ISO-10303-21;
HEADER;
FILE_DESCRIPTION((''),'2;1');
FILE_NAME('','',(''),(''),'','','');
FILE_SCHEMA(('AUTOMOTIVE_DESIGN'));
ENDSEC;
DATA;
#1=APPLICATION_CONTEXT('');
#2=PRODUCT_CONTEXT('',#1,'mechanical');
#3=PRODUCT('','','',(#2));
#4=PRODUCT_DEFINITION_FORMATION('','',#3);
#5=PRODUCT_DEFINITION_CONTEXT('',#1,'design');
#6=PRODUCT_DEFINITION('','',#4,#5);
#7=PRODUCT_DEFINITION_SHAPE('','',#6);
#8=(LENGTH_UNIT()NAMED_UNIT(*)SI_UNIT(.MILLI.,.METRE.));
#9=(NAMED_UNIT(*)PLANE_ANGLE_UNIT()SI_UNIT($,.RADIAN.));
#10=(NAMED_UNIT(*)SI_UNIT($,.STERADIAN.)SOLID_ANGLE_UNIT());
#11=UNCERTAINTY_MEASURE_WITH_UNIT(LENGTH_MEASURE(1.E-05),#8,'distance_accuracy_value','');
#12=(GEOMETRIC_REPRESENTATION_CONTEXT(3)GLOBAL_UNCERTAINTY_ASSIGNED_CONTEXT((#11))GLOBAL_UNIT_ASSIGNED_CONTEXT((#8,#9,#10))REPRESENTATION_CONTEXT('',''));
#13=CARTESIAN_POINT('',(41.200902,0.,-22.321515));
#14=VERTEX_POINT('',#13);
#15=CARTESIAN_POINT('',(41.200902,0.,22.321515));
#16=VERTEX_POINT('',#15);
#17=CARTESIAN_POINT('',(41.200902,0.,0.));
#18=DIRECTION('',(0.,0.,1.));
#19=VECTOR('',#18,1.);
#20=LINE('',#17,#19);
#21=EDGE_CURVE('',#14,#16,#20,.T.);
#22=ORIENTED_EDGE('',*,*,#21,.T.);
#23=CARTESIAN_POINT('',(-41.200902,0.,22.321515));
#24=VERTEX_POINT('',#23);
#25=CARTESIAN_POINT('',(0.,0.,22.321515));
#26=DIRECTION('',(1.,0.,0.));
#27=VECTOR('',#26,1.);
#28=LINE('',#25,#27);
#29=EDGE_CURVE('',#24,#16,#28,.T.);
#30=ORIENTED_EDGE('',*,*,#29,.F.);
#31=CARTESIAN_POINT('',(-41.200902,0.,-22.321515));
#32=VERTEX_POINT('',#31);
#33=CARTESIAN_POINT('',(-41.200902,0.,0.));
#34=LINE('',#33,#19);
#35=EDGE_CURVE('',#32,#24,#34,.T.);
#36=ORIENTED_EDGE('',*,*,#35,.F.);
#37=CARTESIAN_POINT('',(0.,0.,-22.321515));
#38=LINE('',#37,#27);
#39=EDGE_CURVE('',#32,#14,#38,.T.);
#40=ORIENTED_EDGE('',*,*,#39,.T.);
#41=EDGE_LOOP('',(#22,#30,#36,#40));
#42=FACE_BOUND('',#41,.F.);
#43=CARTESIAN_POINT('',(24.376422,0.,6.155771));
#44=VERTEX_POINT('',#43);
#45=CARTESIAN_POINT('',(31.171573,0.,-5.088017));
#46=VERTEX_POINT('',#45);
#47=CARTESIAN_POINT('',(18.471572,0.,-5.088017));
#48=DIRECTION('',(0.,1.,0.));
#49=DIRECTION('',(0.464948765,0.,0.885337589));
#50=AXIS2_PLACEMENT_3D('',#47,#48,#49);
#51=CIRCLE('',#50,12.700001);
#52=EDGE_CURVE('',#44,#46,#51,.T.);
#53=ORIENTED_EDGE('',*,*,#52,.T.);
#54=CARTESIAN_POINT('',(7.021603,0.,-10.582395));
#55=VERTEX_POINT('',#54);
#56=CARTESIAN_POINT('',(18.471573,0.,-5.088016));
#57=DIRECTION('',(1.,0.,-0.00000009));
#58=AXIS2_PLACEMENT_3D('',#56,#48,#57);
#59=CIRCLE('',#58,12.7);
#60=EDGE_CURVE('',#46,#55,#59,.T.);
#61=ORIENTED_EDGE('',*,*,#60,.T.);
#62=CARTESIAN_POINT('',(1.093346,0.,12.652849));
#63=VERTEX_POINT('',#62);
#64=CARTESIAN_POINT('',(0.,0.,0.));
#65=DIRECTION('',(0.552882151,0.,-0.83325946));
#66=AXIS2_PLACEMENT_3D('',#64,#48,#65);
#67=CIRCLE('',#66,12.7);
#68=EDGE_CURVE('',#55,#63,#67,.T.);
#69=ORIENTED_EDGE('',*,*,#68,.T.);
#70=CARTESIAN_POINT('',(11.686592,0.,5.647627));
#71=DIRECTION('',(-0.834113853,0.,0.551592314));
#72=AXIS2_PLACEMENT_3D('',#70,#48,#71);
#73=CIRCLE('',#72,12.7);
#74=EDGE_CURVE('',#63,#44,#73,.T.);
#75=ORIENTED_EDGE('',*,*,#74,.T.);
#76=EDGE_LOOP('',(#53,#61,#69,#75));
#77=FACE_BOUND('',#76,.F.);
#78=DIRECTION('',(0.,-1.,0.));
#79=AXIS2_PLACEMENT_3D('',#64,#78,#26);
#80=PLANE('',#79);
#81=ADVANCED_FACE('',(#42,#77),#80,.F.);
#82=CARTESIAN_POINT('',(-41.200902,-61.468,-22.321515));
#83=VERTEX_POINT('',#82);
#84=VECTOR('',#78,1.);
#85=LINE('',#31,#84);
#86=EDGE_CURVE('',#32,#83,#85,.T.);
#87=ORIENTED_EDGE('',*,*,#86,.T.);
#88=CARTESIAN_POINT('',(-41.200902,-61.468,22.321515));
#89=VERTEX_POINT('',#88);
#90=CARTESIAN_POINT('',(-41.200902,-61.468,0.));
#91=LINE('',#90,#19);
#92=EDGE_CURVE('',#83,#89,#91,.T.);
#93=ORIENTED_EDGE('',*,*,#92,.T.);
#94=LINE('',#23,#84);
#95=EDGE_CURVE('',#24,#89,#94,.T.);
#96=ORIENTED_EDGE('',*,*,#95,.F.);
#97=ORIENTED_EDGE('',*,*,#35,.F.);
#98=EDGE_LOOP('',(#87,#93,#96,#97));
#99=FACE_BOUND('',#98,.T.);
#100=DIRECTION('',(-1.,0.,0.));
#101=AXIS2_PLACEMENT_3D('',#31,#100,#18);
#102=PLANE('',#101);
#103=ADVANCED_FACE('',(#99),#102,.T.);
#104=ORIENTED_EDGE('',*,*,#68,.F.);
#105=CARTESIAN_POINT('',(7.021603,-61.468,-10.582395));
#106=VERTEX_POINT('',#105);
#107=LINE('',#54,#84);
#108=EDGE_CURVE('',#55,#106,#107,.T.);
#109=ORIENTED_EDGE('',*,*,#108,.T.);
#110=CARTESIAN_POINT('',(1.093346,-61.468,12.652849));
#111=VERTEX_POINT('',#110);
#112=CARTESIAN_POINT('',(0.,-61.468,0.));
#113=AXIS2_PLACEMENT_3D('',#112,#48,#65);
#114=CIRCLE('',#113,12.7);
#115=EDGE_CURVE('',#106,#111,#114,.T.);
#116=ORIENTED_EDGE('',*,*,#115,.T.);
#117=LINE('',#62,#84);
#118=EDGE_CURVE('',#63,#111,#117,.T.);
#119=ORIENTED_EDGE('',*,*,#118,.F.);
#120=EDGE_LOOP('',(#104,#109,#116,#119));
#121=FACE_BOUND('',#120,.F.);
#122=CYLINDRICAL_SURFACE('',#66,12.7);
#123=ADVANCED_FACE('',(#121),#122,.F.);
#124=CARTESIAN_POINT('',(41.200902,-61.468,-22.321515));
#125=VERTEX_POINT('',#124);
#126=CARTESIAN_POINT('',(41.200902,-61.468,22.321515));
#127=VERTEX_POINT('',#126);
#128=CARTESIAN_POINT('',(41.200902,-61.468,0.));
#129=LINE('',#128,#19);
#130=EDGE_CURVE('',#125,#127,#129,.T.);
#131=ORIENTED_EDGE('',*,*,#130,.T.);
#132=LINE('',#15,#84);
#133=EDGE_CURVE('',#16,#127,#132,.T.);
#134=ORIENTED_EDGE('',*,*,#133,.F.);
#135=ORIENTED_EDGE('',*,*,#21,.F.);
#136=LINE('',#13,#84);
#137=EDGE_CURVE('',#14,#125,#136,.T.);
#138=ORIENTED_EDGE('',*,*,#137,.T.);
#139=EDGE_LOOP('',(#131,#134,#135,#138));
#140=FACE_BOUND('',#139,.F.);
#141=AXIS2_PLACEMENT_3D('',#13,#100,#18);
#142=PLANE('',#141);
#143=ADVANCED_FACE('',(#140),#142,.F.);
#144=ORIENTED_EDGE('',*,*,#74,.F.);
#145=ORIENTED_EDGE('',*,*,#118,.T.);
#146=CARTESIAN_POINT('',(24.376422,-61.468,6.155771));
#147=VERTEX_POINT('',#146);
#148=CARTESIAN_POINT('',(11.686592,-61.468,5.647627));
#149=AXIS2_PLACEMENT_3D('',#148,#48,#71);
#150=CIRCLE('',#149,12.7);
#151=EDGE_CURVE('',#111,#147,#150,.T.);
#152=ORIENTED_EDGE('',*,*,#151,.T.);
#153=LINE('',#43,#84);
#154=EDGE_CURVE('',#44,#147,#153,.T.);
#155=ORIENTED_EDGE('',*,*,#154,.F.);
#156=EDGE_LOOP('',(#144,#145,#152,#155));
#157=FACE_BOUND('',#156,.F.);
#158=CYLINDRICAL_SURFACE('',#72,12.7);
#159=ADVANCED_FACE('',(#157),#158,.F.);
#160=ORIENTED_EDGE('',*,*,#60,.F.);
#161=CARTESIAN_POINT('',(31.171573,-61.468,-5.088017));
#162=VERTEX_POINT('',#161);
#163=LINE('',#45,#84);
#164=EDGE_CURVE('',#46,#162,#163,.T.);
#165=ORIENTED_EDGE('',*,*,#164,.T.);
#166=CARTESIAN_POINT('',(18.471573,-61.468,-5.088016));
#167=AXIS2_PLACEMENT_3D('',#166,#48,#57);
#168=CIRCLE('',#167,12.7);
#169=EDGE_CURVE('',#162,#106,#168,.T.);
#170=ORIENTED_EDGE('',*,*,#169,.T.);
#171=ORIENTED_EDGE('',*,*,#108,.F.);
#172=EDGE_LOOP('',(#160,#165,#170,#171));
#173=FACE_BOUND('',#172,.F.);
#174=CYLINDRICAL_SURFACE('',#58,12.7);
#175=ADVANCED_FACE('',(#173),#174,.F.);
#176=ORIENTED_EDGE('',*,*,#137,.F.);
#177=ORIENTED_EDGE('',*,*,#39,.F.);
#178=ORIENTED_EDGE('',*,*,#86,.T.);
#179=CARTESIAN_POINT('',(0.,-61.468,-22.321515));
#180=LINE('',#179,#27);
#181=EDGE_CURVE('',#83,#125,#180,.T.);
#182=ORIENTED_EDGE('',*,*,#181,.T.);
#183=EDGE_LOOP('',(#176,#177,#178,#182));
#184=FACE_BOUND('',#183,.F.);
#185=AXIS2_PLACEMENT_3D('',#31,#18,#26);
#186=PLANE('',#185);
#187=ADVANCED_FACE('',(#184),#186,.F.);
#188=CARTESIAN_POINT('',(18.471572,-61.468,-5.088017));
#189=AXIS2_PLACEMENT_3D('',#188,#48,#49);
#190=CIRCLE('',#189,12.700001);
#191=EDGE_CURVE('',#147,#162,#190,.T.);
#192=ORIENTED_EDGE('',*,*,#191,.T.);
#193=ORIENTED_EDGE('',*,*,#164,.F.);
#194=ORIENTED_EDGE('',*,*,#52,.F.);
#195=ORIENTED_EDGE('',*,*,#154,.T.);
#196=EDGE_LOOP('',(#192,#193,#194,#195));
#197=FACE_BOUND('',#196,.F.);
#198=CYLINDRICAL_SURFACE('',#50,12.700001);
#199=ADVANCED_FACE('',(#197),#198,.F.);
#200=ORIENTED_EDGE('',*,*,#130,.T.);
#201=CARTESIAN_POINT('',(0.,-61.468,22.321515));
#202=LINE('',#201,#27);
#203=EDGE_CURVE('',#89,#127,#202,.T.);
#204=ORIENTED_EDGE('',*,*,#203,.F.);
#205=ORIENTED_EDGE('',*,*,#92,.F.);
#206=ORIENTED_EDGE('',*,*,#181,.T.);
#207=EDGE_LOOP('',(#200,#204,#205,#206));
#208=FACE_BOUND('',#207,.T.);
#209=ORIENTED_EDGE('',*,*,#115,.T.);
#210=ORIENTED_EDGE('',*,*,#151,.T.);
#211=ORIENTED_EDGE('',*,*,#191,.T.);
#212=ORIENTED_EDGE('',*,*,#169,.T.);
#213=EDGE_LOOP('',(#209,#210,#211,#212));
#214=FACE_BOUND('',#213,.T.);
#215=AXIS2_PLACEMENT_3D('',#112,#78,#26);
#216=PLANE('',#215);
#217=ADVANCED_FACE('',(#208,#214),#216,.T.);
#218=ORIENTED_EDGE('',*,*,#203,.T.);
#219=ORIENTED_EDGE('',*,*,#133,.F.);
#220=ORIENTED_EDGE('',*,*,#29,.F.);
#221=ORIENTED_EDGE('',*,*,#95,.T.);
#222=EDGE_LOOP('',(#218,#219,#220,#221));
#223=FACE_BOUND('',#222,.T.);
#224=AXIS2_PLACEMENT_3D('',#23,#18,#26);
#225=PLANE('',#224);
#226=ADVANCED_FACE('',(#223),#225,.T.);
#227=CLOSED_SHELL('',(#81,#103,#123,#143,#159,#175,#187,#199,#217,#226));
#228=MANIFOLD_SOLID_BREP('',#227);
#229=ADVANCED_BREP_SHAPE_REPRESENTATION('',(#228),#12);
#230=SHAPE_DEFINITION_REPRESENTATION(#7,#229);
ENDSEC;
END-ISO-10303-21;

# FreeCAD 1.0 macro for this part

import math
import FreeCAD as App
import Part
import Sketcher
Q = App.Units.Quantity


def add_polygon(sketch, points):
    """Adds a closed chain of lines whose ends are joined by coincident constraints."""
    first, n = sketch.GeometryCount, len(points)
    for a, b in zip(points, points[1:] + points[:1]):
        sketch.addGeometry(Part.LineSegment(App.Vector(*a, 0), App.Vector(*b, 0)), False)
    for i in range(n):
        sketch.addConstraint(Sketcher.Constraint("Coincident", first + i, 2, first + (i + 1) % n, 1))

doc = App.newDocument("Part")
params = doc.addObject("Spreadsheet::Sheet", "Params")
for row, (alias, value) in enumerate([
    ("sketch1_radius", "0.5 in"),
    ("pad1_length", "2.42 in"),
], start=1):
    params.set(f"A{row}", alias)
    params.set(f"B{row}", "=" + value)
    params.setAlias(f"B{row}", alias)

body = doc.addObject("PartDesign::Body", "Body")

# Sketch on XZ plane
sketch1 = doc.addObject("Sketcher::SketchObject", "Sketch")
body.addObject(sketch1)
sketch1.AttachmentSupport = (doc.XZ_Plane, [""])
sketch1.MapMode = "FlatFace"
add_polygon(sketch1, [(-41, 22), (-41, -22), (41, -22), (41, 22)])  # lines 0-3
sketch1.addGeometry(Part.ArcOfCircle(Part.Circle(App.Vector(18, -5, 0), App.Vector(0, 0, 1), 13), math.radians(-154), math.radians(0)), False)  # 4
sketch1.addGeometry(Part.ArcOfCircle(Part.Circle(App.Vector(0, 0, 0), App.Vector(0, 0, 1), 13), math.radians(85), math.radians(304)), False)  # 5
sketch1.addGeometry(Part.ArcOfCircle(Part.Circle(App.Vector(12, 6, 0), App.Vector(0, 0, 1), 13), math.radians(2), math.radians(147)), False)  # 6
sketch1.addGeometry(Part.ArcOfCircle(Part.Circle(App.Vector(18, -5, 0), App.Vector(0, 0, 1), 13), math.radians(0), math.radians(62)), False)  # 7
sketch1.addConstraint([
    Sketcher.Constraint("Coincident", 4, 1, 5, 2),
    Sketcher.Constraint("Coincident", 5, 1, 6, 2),
    Sketcher.Constraint("Coincident", 6, 1, 7, 2),
    Sketcher.Constraint("Tangent", 7, 1, 4, 2),
    Sketcher.Constraint("Vertical", 0),
    Sketcher.Constraint("Horizontal", 1),
    Sketcher.Constraint("Vertical", 2),
    Sketcher.Constraint("Horizontal", 3),
    Sketcher.Constraint("Coincident", 5, 3, -1, 1),
    Sketcher.Constraint("Equal", 4, 5),
    Sketcher.Constraint("Equal", 5, 6),
    Sketcher.Constraint("Equal", 6, 7),
    Sketcher.Constraint("Symmetric", 0, 2, 2, 2, -1, 1),
    Sketcher.Constraint("Horizontal", 4, 3, 7, 1),
    Sketcher.Constraint("Radius", 4, Q("0.5 in")),
    Sketcher.Constraint("DistanceY", 0, 2, -1, 1, Q("0.8787998 in")),
    Sketcher.Constraint("DistanceX", 0, 2, 5, 3, 41.200902),
    Sketcher.Constraint("DistanceY", 0, 2, 7, 3, 17.233498),
    Sketcher.Constraint("DistanceX", 4, 1, 1, 2, 34.179299),
    Sketcher.Constraint("DistanceX", -1, 1, 6, 3, 11.686592),
    Sketcher.Constraint("DistanceY", -1, 1, 5, 1, 12.652849),
])
sketch1.setExpression("Constraints[18]", "Params.sketch1_radius")
pad1 = doc.addObject("PartDesign::Pad", "Pad")
body.addObject(pad1)
pad1.Profile = sketch1
pad1.setExpression("Length", "Params.pad1_length")

doc.recompute()
